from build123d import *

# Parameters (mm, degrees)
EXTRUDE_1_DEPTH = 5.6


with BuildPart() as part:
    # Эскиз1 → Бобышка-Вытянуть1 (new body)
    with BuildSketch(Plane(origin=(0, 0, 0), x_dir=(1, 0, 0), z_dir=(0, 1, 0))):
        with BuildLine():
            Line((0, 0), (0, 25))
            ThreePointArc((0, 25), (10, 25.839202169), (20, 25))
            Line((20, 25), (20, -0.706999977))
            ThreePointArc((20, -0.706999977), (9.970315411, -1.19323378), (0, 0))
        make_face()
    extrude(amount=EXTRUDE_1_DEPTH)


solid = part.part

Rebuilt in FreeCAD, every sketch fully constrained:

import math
import FreeCAD as App
import Part
import Sketcher
from FreeCAD import Vector

doc = App.newDocument("Part")
body = doc.addObject("PartDesign::Body", "Body")

# Sketch on XZ plane
sketch1 = body.newObject("Sketcher::SketchObject", "Sketch")
sketch1.AttachmentSupport = (doc.getObject("XZ_Plane"), [""])
sketch1.MapMode = "FlatFace"
sketch1.addGeometry([
    Part.LineSegment(Vector(0, -25, 0), Vector(0, 0, 0)),
    Part.ArcOfCircle(Part.Circle(Vector(12, -59, 0), Vector(0, 0, 1), 60), math.radians(82.42), math.radians(101.62)),
    Part.LineSegment(Vector(20, 1, 0), Vector(20, -25, 0)),
    Part.ArcOfCircle(Part.Circle(Vector(10, 34, 0), Vector(0, 0, 1), 60), math.radians(-99.59), math.radians(-80.41)),
], False)
sketch1.addConstraint([
    Sketcher.Constraint("Coincident", 0, 2, 1, 2),
    Sketcher.Constraint("Coincident", 1, 1, 2, 1),
    Sketcher.Constraint("Coincident", 2, 2, 3, 2),
    Sketcher.Constraint("Coincident", 3, 1, 0, 1),
    Sketcher.Constraint("Vertical", 0),
    Sketcher.Constraint("Vertical", 2),
    Sketcher.Constraint("Coincident", 0, 2, -1, 1),
    Sketcher.Constraint("Equal", 1, 3),
    Sketcher.Constraint("Horizontal", 2, 2, 3, 1),
    Sketcher.Constraint("Radius", 1, 60.0),
    Sketcher.Constraint("DistanceY", 0, 1, 0, 2, 25.0),
    Sketcher.Constraint("DistanceX", -1, 1, 3, 3, 10.0),
    Sketcher.Constraint("DistanceY", 2, 2, 2, 1, 25.707),
])
pad1 = body.newObject("PartDesign::Pad", "Pad")
pad1.Profile = sketch1
pad1.Length = 5.6
pad1.Reversed = True

doc.recompute()
